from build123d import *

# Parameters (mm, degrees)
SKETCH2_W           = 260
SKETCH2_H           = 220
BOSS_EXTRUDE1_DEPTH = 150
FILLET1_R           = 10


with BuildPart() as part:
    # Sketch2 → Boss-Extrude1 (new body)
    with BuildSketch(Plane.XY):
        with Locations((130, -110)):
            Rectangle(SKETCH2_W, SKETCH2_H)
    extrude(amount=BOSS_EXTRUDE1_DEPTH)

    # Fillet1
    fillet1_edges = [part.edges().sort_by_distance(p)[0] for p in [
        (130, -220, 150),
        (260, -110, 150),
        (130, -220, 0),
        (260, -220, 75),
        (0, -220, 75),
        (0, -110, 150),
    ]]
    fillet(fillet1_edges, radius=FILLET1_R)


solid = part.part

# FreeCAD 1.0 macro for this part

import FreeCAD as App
import Part
import Sketcher

V = App.Vector
Q = App.Units.Quantity


def edges_at(feature, points):
    """Names of the edges that pass closest to the given points."""
    edges = feature.Shape.Edges
    near = lambda p: min(range(len(edges)), key=lambda i: edges[i].distToShape(Part.Vertex(*p))[0])
    return sorted({f"Edge{near(p) + 1}" for p in points})


def add_polygon(sketch, points):
    """Adds a closed chain of lines whose ends are joined by coincident constraints."""
    first, n = sketch.GeometryCount, len(points)
    for a, b in zip(points, points[1:] + points[:1]):
        sketch.addGeometry(Part.LineSegment(App.Vector(*a, 0), App.Vector(*b, 0)), False)
    for i in range(n):
        sketch.addConstraint(Sketcher.Constraint("Coincident", first + i, 2, first + (i + 1) % n, 1))

doc = App.newDocument("Part")
params = doc.addObject("Spreadsheet::Sheet", "Params")
for row, (alias, value) in enumerate([
    ("sketch1_width", "260 mm"),
    ("sketch1_height", "220 mm"),
    ("pad1_length", "150 mm"),
    ("fillet_radius", "10 mm"),
], start=1):
    params.set(f"A{row}", alias)
    params.set(f"B{row}", "=" + value)
    params.setAlias(f"B{row}", alias)

body = doc.addObject("PartDesign::Body", "Body")

# Sketch on XY plane
sketch1 = doc.addObject("Sketcher::SketchObject", "Sketch")
body.addObject(sketch1)
sketch1.AttachmentSupport = (doc.XY_Plane, [""])
sketch1.MapMode = "FlatFace"
add_polygon(sketch1, [(0, 0), (0, -220), (260, -220), (260, 0)])  # lines 0-3
sketch1.addConstraint([
    Sketcher.Constraint("Vertical", 0),
    Sketcher.Constraint("Horizontal", 1),
    Sketcher.Constraint("Vertical", 2),
    Sketcher.Constraint("Horizontal", 3),
    Sketcher.Constraint("Coincident", 3, 2, -1, 1),
    Sketcher.Constraint("DistanceX", 1, 1, 1, 2, Q("260 mm")),
    Sketcher.Constraint("DistanceY", 0, 2, 0, 1, Q("220 mm")),
])
sketch1.setExpression("Constraints[9]", "Params.sketch1_width")
sketch1.setExpression("Constraints[10]", "Params.sketch1_height")
pad1 = doc.addObject("PartDesign::Pad", "Pad")
body.addObject(pad1)
pad1.Profile = sketch1
pad1.setExpression("Length", "Params.pad1_length")
doc.recompute()

fillet = doc.addObject("PartDesign::Fillet", "Fillet")
body.addObject(fillet)
fillet.Base = (pad1, edges_at(pad1, [
    (130, -220, 150),
    (260, -110, 150),
    (130, -220, 0),
    (260, -220, 75),
    (0, -220, 75),
    (0, -110, 150),
]))
fillet.setExpression("Radius", "Params.fillet_radius")

doc.recompute()
